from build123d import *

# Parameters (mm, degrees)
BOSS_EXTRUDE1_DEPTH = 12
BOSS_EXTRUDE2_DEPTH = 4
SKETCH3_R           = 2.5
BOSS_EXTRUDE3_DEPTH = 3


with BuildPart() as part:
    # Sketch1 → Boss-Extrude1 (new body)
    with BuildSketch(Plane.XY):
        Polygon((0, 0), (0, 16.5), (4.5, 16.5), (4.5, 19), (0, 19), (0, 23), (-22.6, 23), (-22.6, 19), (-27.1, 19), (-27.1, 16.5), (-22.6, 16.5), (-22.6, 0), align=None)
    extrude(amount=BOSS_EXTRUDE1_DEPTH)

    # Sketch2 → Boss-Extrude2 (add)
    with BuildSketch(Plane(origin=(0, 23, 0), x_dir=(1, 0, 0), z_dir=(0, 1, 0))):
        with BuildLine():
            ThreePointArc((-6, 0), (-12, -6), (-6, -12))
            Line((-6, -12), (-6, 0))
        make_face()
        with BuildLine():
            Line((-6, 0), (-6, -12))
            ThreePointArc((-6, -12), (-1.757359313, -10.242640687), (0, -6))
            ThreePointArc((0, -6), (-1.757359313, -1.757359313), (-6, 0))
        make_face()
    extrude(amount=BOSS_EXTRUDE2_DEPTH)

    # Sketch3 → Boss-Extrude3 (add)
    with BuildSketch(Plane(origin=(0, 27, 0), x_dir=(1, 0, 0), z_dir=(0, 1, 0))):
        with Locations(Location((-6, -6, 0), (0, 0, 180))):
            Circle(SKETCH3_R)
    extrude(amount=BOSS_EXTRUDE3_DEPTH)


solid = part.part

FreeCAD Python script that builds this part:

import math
import FreeCAD as App
import Part
import Sketcher
from FreeCAD import Vector

doc = App.newDocument("Part")
body = doc.addObject("PartDesign::Body", "Body")

sketch1 = body.newObject("Sketcher::SketchObject", "Sketch")
sketch1.AttachmentSupport = (doc.getObject("XY_Plane"), [""])
sketch1.MapMode = "FlatFace"
sketch1.addGeometry([
    Part.LineSegment(Vector(0, 0, 0), Vector(0, 16.5, 0)),
    Part.LineSegment(Vector(0, 16.5, 0), Vector(4.5, 16.5, 0)),
    Part.LineSegment(Vector(4.5, 16.5, 0), Vector(4.5, 19, 0)),
    Part.LineSegment(Vector(4.5, 19, 0), Vector(0, 19, 0)),
    Part.LineSegment(Vector(0, 19, 0), Vector(0, 23, 0)),
    Part.LineSegment(Vector(0, 23, 0), Vector(-22.6, 23, 0)),
    Part.LineSegment(Vector(-22.6, 23, 0), Vector(-22.6, 19, 0)),
    Part.LineSegment(Vector(-22.6, 19, 0), Vector(-27.1, 19, 0)),
    Part.LineSegment(Vector(-27.1, 19, 0), Vector(-27.1, 16.5, 0)),
    Part.LineSegment(Vector(-27.1, 16.5, 0), Vector(-22.6, 16.5, 0)),
    Part.LineSegment(Vector(-22.6, 16.5, 0), Vector(-22.6, 0, 0)),
    Part.LineSegment(Vector(-22.6, 0, 0), Vector(0, 0, 0)),
], False)
sketch1.addConstraint([
    Sketcher.Constraint("Coincident", 0, 2, 1, 1),
    Sketcher.Constraint("Coincident", 1, 2, 2, 1),
    Sketcher.Constraint("Coincident", 2, 2, 3, 1),
    Sketcher.Constraint("Coincident", 3, 2, 4, 1),
    Sketcher.Constraint("Coincident", 4, 2, 5, 1),
    Sketcher.Constraint("Coincident", 5, 2, 6, 1),
    Sketcher.Constraint("Coincident", 6, 2, 7, 1),
    Sketcher.Constraint("Coincident", 7, 2, 8, 1),
    Sketcher.Constraint("Coincident", 8, 2, 9, 1),
    Sketcher.Constraint("Coincident", 9, 2, 10, 1),
    Sketcher.Constraint("Coincident", 10, 2, 11, 1),
    Sketcher.Constraint("Coincident", 11, 2, 0, 1),
    Sketcher.Constraint("Vertical", 0),
    Sketcher.Constraint("Horizontal", 1),
    Sketcher.Constraint("Vertical", 2),
    Sketcher.Constraint("Horizontal", 3),
    Sketcher.Constraint("Vertical", 4),
    Sketcher.Constraint("Horizontal", 5),
    Sketcher.Constraint("Vertical", 6),
    Sketcher.Constraint("Horizontal", 7),
    Sketcher.Constraint("Vertical", 8),
    Sketcher.Constraint("Horizontal", 9),
    Sketcher.Constraint("Vertical", 10),
    Sketcher.Constraint("Horizontal", 11),
    Sketcher.Constraint("Coincident", 11, 2, -1, 1),
    Sketcher.Constraint("PointOnObject", 3, 2, -2),
    Sketcher.Constraint("Horizontal", 3, 2, 6, 2),
    Sketcher.Constraint("Horizontal", 1, 2, 8, 2),
    Sketcher.Constraint("Vertical", 6, 2, 9, 2),
    Sketcher.Constraint("Equal", 3, 7),
    Sketcher.Constraint("DistanceY", 4, 1, 4, 2, 4.0),
    Sketcher.Constraint("DistanceX", 1, 1, 1, 2, 4.5),
    Sketcher.Constraint("DistanceX", 5, 2, 5, 1, 22.6),
    Sketcher.Constraint("DistanceY", 0, 1, 0, 2, 16.5),
    Sketcher.Constraint("DistanceY", 2, 1, 2, 2, 2.5),
])
pad1 = body.newObject("PartDesign::Pad", "Pad")
pad1.Profile = sketch1
pad1.Length = 12

sketch2 = body.newObject("Sketcher::SketchObject", "Sketch001")
sketch2.AttachmentSupport = (doc.getObject("XZ_Plane"), [""])
sketch2.MapMode = "FlatFace"
sketch2.AttachmentOffset = App.Placement(Vector(0, 0, -23), App.Rotation())
sketch2.addGeometry([
    Part.ArcOfCircle(Part.Circle(Vector(-6, 6, 0), Vector(0, 0, 1), 6), math.radians(90), math.radians(270)),
    Part.ArcOfCircle(Part.Circle(Vector(-6, 6, 0), Vector(0, 0, 1), 6), math.radians(0), math.radians(90)),
    Part.ArcOfCircle(Part.Circle(Vector(-6, 6, 0), Vector(0, 0, 1), 6), math.radians(-90), math.radians(0)),
], False)
sketch2.addConstraint([
    Sketcher.Constraint("Tangent", 0, 1, 1, 2),
    Sketcher.Constraint("Tangent", 1, 1, 2, 2),
    Sketcher.Constraint("Tangent", 2, 1, 0, 2),
    Sketcher.Constraint("PointOnObject", 1, 1, -2),
    Sketcher.Constraint("PointOnObject", 2, 1, -1),
    Sketcher.Constraint("Horizontal", 2, 3, 1, 1),
    Sketcher.Constraint("Vertical", 2, 3, 0, 1),
    Sketcher.Constraint("Vertical", 0, 1, 2, 1),
    Sketcher.Constraint("Radius", 0, 6.0),
])
pad2 = body.newObject("PartDesign::Pad", "Pad001")
pad2.Profile = sketch2
pad2.Length = 4
pad2.Reversed = True

sketch3 = body.newObject("Sketcher::SketchObject", "Sketch002")
sketch3.AttachmentSupport = (doc.getObject("XZ_Plane"), [""])
sketch3.MapMode = "FlatFace"
sketch3.AttachmentOffset = App.Placement(Vector(0, 0, -27), App.Rotation())
sketch3.addGeometry(Part.Circle(Vector(-6, 6, 0), Vector(0, 0, 1), 2.5), False)
sketch3.addConstraint([
    Sketcher.Constraint("Diameter", 0, 5.0),
    Sketcher.Constraint("DistanceX", 0, 3, -1, 1, 6.0),
    Sketcher.Constraint("DistanceY", -1, 1, 0, 3, 6.0),
])
pad3 = body.newObject("PartDesign::Pad", "Pad002")
pad3.Profile = sketch3
pad3.Length = 3
pad3.Reversed = True

doc.recompute()
